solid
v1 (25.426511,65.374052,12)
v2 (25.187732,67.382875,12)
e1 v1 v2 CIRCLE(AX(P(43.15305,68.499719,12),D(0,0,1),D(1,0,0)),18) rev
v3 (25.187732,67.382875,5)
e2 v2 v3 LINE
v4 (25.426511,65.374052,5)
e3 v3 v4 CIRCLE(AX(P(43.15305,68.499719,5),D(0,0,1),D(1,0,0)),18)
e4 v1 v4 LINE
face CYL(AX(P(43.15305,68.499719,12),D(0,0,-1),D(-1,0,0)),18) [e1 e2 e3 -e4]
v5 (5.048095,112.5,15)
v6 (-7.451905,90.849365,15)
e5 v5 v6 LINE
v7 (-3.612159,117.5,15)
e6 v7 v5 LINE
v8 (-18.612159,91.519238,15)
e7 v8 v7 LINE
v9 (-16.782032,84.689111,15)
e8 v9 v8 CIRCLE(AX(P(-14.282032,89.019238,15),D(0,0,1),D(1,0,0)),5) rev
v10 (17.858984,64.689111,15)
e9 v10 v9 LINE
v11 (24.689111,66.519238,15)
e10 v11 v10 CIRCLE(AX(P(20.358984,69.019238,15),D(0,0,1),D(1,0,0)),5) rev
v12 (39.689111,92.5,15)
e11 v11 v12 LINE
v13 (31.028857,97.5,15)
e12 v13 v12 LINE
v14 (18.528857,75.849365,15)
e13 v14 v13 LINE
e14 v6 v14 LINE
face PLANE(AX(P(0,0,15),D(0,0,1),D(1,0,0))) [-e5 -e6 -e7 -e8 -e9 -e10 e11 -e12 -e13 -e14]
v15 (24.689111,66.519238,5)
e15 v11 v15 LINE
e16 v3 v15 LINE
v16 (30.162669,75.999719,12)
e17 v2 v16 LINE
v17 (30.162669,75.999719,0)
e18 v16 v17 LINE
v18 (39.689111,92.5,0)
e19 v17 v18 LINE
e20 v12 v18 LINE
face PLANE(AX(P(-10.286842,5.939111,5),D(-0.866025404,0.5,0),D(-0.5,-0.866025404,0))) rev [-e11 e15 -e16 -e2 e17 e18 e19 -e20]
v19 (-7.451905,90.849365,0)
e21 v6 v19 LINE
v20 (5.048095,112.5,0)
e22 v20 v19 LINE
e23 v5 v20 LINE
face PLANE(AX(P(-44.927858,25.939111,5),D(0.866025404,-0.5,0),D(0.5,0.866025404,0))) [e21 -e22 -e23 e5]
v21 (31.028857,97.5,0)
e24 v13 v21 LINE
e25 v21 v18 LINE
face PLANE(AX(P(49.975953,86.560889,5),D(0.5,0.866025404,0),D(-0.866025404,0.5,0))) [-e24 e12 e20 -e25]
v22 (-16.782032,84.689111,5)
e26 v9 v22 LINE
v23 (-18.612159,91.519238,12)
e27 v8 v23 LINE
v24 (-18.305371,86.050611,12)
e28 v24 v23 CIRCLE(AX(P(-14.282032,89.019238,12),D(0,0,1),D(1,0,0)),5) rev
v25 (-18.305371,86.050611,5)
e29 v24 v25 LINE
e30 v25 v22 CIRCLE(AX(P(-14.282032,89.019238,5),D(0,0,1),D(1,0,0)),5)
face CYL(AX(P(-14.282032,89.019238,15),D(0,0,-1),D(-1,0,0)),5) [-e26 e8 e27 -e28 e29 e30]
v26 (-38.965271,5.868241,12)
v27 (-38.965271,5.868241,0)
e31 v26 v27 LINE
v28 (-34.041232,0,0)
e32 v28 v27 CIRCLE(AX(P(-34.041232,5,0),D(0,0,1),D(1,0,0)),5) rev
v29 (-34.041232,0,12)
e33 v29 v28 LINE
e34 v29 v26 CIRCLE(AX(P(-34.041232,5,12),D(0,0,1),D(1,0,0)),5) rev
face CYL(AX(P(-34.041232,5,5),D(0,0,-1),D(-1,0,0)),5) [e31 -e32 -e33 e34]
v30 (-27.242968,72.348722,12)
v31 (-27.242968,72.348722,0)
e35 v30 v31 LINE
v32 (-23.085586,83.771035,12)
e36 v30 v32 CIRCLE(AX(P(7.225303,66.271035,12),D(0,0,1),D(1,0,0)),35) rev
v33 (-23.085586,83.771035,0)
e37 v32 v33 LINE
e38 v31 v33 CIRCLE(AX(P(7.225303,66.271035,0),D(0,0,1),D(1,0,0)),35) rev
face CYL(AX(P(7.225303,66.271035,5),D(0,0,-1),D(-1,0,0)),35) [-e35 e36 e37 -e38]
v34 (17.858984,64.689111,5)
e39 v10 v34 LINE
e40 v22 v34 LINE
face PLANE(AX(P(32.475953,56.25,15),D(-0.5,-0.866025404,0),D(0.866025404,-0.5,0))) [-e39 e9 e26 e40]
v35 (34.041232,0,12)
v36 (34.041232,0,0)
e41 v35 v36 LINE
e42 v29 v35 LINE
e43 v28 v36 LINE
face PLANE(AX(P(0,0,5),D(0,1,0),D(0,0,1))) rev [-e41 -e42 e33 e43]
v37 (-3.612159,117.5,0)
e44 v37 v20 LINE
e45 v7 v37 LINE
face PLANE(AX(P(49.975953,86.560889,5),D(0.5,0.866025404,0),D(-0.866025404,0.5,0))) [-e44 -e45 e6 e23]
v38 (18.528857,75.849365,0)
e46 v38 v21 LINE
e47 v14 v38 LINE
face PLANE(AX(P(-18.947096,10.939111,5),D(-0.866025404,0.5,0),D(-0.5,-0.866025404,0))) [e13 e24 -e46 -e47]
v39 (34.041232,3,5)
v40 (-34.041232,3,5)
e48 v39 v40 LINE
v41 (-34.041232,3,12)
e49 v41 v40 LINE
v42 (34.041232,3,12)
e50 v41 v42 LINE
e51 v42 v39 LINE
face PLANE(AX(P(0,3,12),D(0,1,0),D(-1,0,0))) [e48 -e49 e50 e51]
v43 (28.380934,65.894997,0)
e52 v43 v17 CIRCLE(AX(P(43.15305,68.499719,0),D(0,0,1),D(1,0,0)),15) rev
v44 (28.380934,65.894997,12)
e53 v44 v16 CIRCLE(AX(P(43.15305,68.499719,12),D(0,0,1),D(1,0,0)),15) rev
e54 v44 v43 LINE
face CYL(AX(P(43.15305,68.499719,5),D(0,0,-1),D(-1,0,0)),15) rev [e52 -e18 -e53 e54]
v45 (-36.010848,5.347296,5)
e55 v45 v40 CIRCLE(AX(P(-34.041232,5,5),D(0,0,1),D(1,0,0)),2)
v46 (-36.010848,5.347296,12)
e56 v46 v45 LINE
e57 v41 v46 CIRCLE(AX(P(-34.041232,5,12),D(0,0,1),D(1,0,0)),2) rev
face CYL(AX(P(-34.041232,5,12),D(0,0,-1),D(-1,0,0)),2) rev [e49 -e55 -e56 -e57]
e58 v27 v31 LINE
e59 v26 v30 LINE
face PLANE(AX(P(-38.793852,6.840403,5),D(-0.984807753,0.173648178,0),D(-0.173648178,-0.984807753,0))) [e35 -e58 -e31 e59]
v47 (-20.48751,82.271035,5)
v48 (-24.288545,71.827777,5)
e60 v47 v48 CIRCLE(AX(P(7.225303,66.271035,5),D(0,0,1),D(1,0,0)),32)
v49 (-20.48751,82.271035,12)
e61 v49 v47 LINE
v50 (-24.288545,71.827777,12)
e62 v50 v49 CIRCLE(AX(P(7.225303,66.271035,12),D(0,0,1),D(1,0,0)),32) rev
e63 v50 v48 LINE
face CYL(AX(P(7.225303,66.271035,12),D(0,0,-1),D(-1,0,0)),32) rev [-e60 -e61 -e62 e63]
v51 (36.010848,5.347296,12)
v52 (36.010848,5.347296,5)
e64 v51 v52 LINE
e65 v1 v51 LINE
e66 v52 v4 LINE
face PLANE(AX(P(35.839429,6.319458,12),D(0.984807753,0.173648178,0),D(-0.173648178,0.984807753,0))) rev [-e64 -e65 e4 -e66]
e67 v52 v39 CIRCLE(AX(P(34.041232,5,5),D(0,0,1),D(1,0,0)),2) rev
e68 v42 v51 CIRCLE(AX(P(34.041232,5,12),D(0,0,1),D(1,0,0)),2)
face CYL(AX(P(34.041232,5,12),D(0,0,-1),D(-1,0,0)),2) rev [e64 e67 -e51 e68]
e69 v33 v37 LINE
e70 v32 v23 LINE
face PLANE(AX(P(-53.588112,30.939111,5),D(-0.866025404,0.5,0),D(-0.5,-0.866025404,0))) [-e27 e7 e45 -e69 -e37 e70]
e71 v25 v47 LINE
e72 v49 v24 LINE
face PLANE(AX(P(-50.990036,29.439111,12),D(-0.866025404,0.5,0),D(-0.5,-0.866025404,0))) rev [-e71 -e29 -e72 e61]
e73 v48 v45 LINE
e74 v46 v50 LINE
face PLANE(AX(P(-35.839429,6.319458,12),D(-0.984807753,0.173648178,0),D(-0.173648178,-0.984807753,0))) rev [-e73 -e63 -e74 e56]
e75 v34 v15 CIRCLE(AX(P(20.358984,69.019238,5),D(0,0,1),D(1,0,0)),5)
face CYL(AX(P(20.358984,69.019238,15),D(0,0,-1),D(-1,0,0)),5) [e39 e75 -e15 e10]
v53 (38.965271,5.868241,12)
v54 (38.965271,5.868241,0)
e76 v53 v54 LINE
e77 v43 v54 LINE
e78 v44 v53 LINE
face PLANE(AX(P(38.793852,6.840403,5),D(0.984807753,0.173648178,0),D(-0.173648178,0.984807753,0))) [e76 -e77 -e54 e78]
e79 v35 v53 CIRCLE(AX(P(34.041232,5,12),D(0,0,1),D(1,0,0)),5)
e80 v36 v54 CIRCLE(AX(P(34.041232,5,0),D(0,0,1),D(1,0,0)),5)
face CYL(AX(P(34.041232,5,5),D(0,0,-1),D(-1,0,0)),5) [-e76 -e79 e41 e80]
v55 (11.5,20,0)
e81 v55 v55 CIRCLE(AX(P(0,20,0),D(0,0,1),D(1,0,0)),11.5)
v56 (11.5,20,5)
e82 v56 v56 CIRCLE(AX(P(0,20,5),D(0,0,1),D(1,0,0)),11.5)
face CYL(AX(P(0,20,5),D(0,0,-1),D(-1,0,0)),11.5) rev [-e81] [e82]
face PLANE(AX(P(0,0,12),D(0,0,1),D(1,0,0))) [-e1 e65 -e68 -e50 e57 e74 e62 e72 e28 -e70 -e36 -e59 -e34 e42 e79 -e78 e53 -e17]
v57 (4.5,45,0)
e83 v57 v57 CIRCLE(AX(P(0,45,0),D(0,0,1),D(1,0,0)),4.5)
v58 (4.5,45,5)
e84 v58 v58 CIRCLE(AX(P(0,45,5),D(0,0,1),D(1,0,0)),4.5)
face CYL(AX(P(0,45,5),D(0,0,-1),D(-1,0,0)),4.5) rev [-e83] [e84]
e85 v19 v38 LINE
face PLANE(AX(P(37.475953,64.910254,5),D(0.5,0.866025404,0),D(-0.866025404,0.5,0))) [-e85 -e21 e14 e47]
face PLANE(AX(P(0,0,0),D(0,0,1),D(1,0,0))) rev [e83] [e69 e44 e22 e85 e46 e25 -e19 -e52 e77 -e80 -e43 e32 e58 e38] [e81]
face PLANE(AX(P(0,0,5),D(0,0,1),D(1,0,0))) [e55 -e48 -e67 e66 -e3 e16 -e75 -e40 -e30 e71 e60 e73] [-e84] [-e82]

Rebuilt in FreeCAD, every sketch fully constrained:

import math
import FreeCAD as App
import Part
import Sketcher

V = App.Vector
Q = App.Units.Quantity

doc = App.newDocument("Part")
body = doc.addObject("PartDesign::Body", "Body")

# Sketch on XY plane
sketch1 = body.newObject("Sketcher::SketchObject", "Sketch")
sketch1.AttachmentSupport = (doc.getObject("XY_Plane"), [""])
sketch1.MapMode = "FlatFace"
sketch1.addGeometry([
    Part.ArcOfCircle(Part.Circle(V(-34, 5, 0), V(0, 0, 1), 5), math.radians(170), math.radians(270)),  # 0
    Part.LineSegment(V(-34, 0, 0), V(34, 0, 0)),  # 1
    Part.ArcOfCircle(Part.Circle(V(34, 5, 0), V(0, 0, 1), 5), math.radians(-90), math.radians(10)),  # 2
    Part.LineSegment(V(39, 5.9, 0), V(28.4, 65.9, 0)),  # 3
    Part.ArcOfCircle(Part.Circle(V(43.2, 68.5, 0), V(0, 0, 1), 15), math.radians(150), math.radians(190)),  # 4
    Part.LineSegment(V(30.2, 76, 0), V(39.7, 92.5, 0)),  # 5
    Part.LineSegment(V(39.7, 92.5, 0), V(31, 97.5, 0)),  # 6
    Part.LineSegment(V(31, 97.5, 0), V(18.5, 75.8, 0)),  # 7
    Part.LineSegment(V(18.5, 75.8, 0), V(-7.5, 90.8, 0)),  # 8
    Part.LineSegment(V(-7.5, 90.8, 0), V(5, 112.5, 0)),  # 9
    Part.LineSegment(V(5, 112.5, 0), V(-3.6, 117.5, 0)),  # 10
    Part.LineSegment(V(-3.6, 117.5, 0), V(-18.6, 91.5, 0)),  # 11
    Part.LineSegment(V(-18.6, 91.5, 0), V(-23.1, 83.8, 0)),  # 12
    Part.ArcOfCircle(Part.Circle(V(7.2, 66.3, 0), V(0, 0, 1), 35), math.radians(150), math.radians(170)),  # 13
    Part.LineSegment(V(-27.2, 72.3, 0), V(-39, 5.9, 0)),  # 14
    Part.Circle(V(0, 20, 0), V(0, 0, 1), 11.5),  # 15
    Part.Circle(V(0, 45, 0), V(0, 0, 1), 4.5),  # 16
], False)
sketch1.addConstraint([
    Sketcher.Constraint("Tangent", 0, 2, 1, 1),
    Sketcher.Constraint("Tangent", 1, 2, 2, 1),
    Sketcher.Constraint("Tangent", 2, 2, 3, 1),
    Sketcher.Constraint("Tangent", 3, 2, 4, 2),
    Sketcher.Constraint("Tangent", 4, 1, 5, 1),
    Sketcher.Constraint("Coincident", 5, 2, 6, 1),
    Sketcher.Constraint("Coincident", 6, 2, 7, 1),
    Sketcher.Constraint("Coincident", 7, 2, 8, 1),
    Sketcher.Constraint("Coincident", 8, 2, 9, 1),
    Sketcher.Constraint("Coincident", 9, 2, 10, 1),
    Sketcher.Constraint("Coincident", 10, 2, 11, 1),
    Sketcher.Constraint("Coincident", 11, 2, 12, 1),
    Sketcher.Constraint("Tangent", 12, 2, 13, 1),
    Sketcher.Constraint("Tangent", 13, 2, 14, 1),
    Sketcher.Constraint("Tangent", 14, 2, 0, 1),
    Sketcher.Constraint("Horizontal", 1),
    Sketcher.Constraint("Equal", 0, 2),
    Sketcher.Constraint("Symmetric", 0, 2, 1, 2, -1, 1),
    Sketcher.Constraint("PointOnObject", 15, 3, -2),
    Sketcher.Constraint("PointOnObject", 16, 3, -2),
    Sketcher.Constraint("Perpendicular", 5, 6),
    Sketcher.Constraint("Perpendicular", 6, 7),
    Sketcher.Constraint("Perpendicular", 7, 8),
    Sketcher.Constraint("Perpendicular", 8, 9),
    Sketcher.Constraint("Perpendicular", 9, 10),
    Sketcher.Constraint("Perpendicular", 10, 11),
    Sketcher.Constraint("Parallel", 11, 12),
    Sketcher.Constraint("Horizontal", 2, 2, 14, 2),
    Sketcher.Constraint("Equal", 7, 9),
    Sketcher.Constraint("Equal", 6, 10),
    Sketcher.Constraint("Equal", 8, 11),
    Sketcher.Constraint("Diameter", 15, Q("23 mm")),
    Sketcher.Constraint("Diameter", 16, Q("9 mm")),
    Sketcher.Constraint("Radius", 0, Q("5 mm")),
    Sketcher.Constraint("Radius", 4, Q("15 mm")),
    Sketcher.Constraint("Radius", 13, Q("35 mm")),
    Sketcher.Constraint("Angle", 3, Q("100 deg")),
    Sketcher.Constraint("Angle", 5, Q("60 deg")),
    Sketcher.Constraint("Distance", 6, Q("10 mm")),
    Sketcher.Constraint("Distance", 7, Q("25 mm")),
    Sketcher.Constraint("Distance", 8, Q("30 mm")),
    Sketcher.Constraint("DistanceY", -1, 1, 15, 3, Q("20 mm")),
    Sketcher.Constraint("DistanceY", -1, 1, 16, 3, Q("45 mm")),
    Sketcher.Constraint("DistanceY", -1, 1, 5, 2, Q("92.5 mm")),
    Sketcher.Constraint("Distance", 14, Q("67.506049 mm")),
    Sketcher.Constraint("DistanceX", 1, 1, 1, 2, Q("68.082464 mm")),
])
pad1 = body.newObject("PartDesign::Pad", "Pad")
pad1.Profile = sketch1
pad1.Length = 5

# Sketch on XY plane
sketch2 = body.newObject("Sketcher::SketchObject", "Sketch001")
sketch2.AttachmentSupport = (doc.getObject("XY_Plane"), [""])
sketch2.MapMode = "FlatFace"
sketch2.addGeometry([
    Part.ArcOfCircle(Part.Circle(V(-34, 5, 0), V(0, 0, 1), 5), math.radians(170), math.radians(270)),  # 0
    Part.LineSegment(V(-34, 0, 0), V(34, 0, 0)),  # 1
    Part.ArcOfCircle(Part.Circle(V(34, 5, 0), V(0, 0, 1), 5), math.radians(-90), math.radians(10)),  # 2
    Part.LineSegment(V(39, 5.9, 0), V(28.4, 65.9, 0)),  # 3
    Part.ArcOfCircle(Part.Circle(V(43.2, 68.5, 0), V(0, 0, 1), 15), math.radians(150), math.radians(190)),  # 4
    Part.LineSegment(V(30.2, 76, 0), V(25.2, 67.4, 0)),  # 5
    Part.ArcOfCircle(Part.Circle(V(43.2, 68.5, 0), V(0, 0, 1), 18), math.radians(-176.44), math.radians(-170)),  # 6
    Part.LineSegment(V(25.4, 65.4, 0), V(36, 5.3, 0)),  # 7
    Part.ArcOfCircle(Part.Circle(V(34, 5, 0), V(0, 0, 1), 2), math.radians(-90), math.radians(10)),  # 8
    Part.LineSegment(V(34, 3, 0), V(-34, 3, 0)),  # 9
    Part.ArcOfCircle(Part.Circle(V(-34, 5, 0), V(0, 0, 1), 2), math.radians(170), math.radians(270)),  # 10
    Part.LineSegment(V(-36, 5.3, 0), V(-24.3, 71.8, 0)),  # 11
    Part.ArcOfCircle(Part.Circle(V(7.2, 66.3, 0), V(0, 0, 1), 32), math.radians(150), math.radians(170)),  # 12
    Part.LineSegment(V(-20.5, 82.3, 0), V(-18.3, 86.1, 0)),  # 13
    Part.ArcOfCircle(Part.Circle(V(-14.3, 89, 0), V(0, 0, 1), 5), math.radians(150), math.radians(216)),  # 14
    Part.LineSegment(V(-18.6, 91.5, 0), V(-23.1, 83.8, 0)),  # 15
    Part.ArcOfCircle(Part.Circle(V(7.2, 66.3, 0), V(0, 0, 1), 35), math.radians(150), math.radians(170)),  # 16
    Part.LineSegment(V(-27.2, 72.3, 0), V(-39, 5.9, 0)),  # 17
], False)
sketch2.addConstraint([
    Sketcher.Constraint("Tangent", 0, 2, 1, 1),
    Sketcher.Constraint("Tangent", 1, 2, 2, 1),
    Sketcher.Constraint("Tangent", 2, 2, 3, 1),
    Sketcher.Constraint("Tangent", 3, 2, 4, 2),
    Sketcher.Constraint("Tangent", 4, 1, 5, 1),
    Sketcher.Constraint("Coincident", 5, 2, 6, 1),
    Sketcher.Constraint("Tangent", 6, 2, 7, 1),
    Sketcher.Constraint("Tangent", 7, 2, 8, 2),
    Sketcher.Constraint("Tangent", 8, 1, 9, 1),
    Sketcher.Constraint("Tangent", 9, 2, 10, 2),
    Sketcher.Constraint("Tangent", 10, 1, 11, 1),
    Sketcher.Constraint("Tangent", 11, 2, 12, 2),
    Sketcher.Constraint("Tangent", 12, 1, 13, 1),
    Sketcher.Constraint("Coincident", 13, 2, 14, 2),
    Sketcher.Constraint("Tangent", 14, 1, 15, 1),
    Sketcher.Constraint("Tangent", 15, 2, 16, 1),
    Sketcher.Constraint("Tangent", 16, 2, 17, 1),
    Sketcher.Constraint("Tangent", 17, 2, 0, 1),
    Sketcher.Constraint("Horizontal", 1),
    Sketcher.Constraint("Horizontal", 9),
    Sketcher.Constraint("Coincident", 6, 3, 4, 3),
    Sketcher.Constraint("Coincident", 8, 3, 2, 3),
    Sketcher.Constraint("Coincident", 10, 3, 0, 3),
    Sketcher.Constraint("Coincident", 16, 3, 12, 3),
    Sketcher.Constraint("Equal", 0, 2),
    Sketcher.Constraint("Equal", 2, 14),
    Sketcher.Constraint("Symmetric", 0, 2, 1, 2, -1, 1),
    Sketcher.Constraint("Parallel", 3, 7),
    Sketcher.Constraint("Parallel", 5, 13),
    Sketcher.Constraint("Parallel", 13, 15),
    Sketcher.Constraint("Parallel", 11, 17),
    Sketcher.Constraint("Horizontal", 7, 2, 10, 1),
    Sketcher.Constraint("Radius", 0, Q("5 mm")),
    Sketcher.Constraint("Radius", 4, Q("15 mm")),
    Sketcher.Constraint("Radius", 6, Q("18 mm")),
    Sketcher.Constraint("Radius", 12, Q("32 mm")),
    Sketcher.Constraint("Angle", 3, Q("100 deg")),
    Sketcher.Constraint("Angle", 5, Q("-120 deg")),
    Sketcher.Constraint("DistanceX", 10, 3, 14, 3, Q("19.7592 mm")),
    Sketcher.Constraint("DistanceY", 5, 2, 11, 2, Q("4.444902 mm")),
    Sketcher.Constraint("Distance", 11, Q("67.506049 mm")),
    Sketcher.Constraint("DistanceX", 1, 1, 1, 2, Q("68.082464 mm")),
])
pad2 = body.newObject("PartDesign::Pad", "Pad001")
pad2.Profile = sketch2
pad2.Length = 12

# Sketch on XY plane
sketch3 = body.newObject("Sketcher::SketchObject", "Sketch002")
sketch3.AttachmentSupport = (doc.getObject("XY_Plane"), [""])
sketch3.MapMode = "FlatFace"
sketch3.addGeometry([
    Part.ArcOfCircle(Part.Circle(V(-14, 89, 0), V(0, 0, 1), 5), math.radians(150), math.radians(240)),  # 0
    Part.LineSegment(V(-17, 85, 0), V(18, 65, 0)),  # 1
    Part.ArcOfCircle(Part.Circle(V(20, 69, 0), V(0, 0, 1), 5), math.radians(-120), math.radians(-30)),  # 2
    Part.LineSegment(V(25, 67, 0), V(30, 76, 0)),  # 3
    Part.LineSegment(V(30, 76, 0), V(40, 92, 0)),  # 4
    Part.LineSegment(V(40, 92, 0), V(31, 98, 0)),  # 5
    Part.LineSegment(V(31, 98, 0), V(19, 76, 0)),  # 6
    Part.LineSegment(V(19, 76, 0), V(-7, 91, 0)),  # 7
    Part.LineSegment(V(-7, 91, 0), V(5, 112, 0)),  # 8
    Part.LineSegment(V(5, 112, 0), V(-4, 118, 0)),  # 9
    Part.LineSegment(V(-4, 118, 0), V(-19, 92, 0)),  # 10
], False)
sketch3.addConstraint([
    Sketcher.Constraint("Tangent", 0, 2, 1, 1),
    Sketcher.Constraint("Tangent", 1, 2, 2, 1),
    Sketcher.Constraint("Tangent", 2, 2, 3, 1),
    Sketcher.Constraint("Coincident", 3, 2, 4, 1),
    Sketcher.Constraint("Coincident", 4, 2, 5, 1),
    Sketcher.Constraint("Coincident", 5, 2, 6, 1),
    Sketcher.Constraint("Coincident", 6, 2, 7, 1),
    Sketcher.Constraint("Coincident", 7, 2, 8, 1),
    Sketcher.Constraint("Coincident", 8, 2, 9, 1),
    Sketcher.Constraint("Coincident", 9, 2, 10, 1),
    Sketcher.Constraint("Tangent", 10, 2, 0, 1),
    Sketcher.Constraint("Equal", 0, 2),
    Sketcher.Constraint("Perpendicular", 1, 3),
    Sketcher.Constraint("Parallel", 3, 4),
    Sketcher.Constraint("Perpendicular", 4, 5),
    Sketcher.Constraint("Perpendicular", 5, 6),
    Sketcher.Constraint("Perpendicular", 6, 7),
    Sketcher.Constraint("Perpendicular", 7, 8),
    Sketcher.Constraint("Perpendicular", 8, 9),
    Sketcher.Constraint("Perpendicular", 9, 10),
    Sketcher.Constraint("Equal", 6, 8),
    Sketcher.Constraint("Equal", 5, 9),
    Sketcher.Constraint("Equal", 7, 10),
    Sketcher.Constraint("Radius", 0, Q("5 mm")),
    Sketcher.Constraint("Angle", 1, Q("-30 deg")),
    Sketcher.Constraint("Distance", 1, Q("40 mm")),
    Sketcher.Constraint("Distance", 5, Q("10 mm")),
    Sketcher.Constraint("Distance", 6, Q("25 mm")),
    Sketcher.Constraint("DistanceY", -1, 1, 4, 2, Q("92.5 mm")),
    Sketcher.Constraint("DistanceX", 0, 3, 3, 2, Q("44.444702 mm")),
    Sketcher.Constraint("DistanceX", -1, 1, 2, 2, Q("24.689111 mm")),
])
pad3 = body.newObject("PartDesign::Pad", "Pad002")
pad3.Profile = sketch3
pad3.Length = 15

doc.recompute()
